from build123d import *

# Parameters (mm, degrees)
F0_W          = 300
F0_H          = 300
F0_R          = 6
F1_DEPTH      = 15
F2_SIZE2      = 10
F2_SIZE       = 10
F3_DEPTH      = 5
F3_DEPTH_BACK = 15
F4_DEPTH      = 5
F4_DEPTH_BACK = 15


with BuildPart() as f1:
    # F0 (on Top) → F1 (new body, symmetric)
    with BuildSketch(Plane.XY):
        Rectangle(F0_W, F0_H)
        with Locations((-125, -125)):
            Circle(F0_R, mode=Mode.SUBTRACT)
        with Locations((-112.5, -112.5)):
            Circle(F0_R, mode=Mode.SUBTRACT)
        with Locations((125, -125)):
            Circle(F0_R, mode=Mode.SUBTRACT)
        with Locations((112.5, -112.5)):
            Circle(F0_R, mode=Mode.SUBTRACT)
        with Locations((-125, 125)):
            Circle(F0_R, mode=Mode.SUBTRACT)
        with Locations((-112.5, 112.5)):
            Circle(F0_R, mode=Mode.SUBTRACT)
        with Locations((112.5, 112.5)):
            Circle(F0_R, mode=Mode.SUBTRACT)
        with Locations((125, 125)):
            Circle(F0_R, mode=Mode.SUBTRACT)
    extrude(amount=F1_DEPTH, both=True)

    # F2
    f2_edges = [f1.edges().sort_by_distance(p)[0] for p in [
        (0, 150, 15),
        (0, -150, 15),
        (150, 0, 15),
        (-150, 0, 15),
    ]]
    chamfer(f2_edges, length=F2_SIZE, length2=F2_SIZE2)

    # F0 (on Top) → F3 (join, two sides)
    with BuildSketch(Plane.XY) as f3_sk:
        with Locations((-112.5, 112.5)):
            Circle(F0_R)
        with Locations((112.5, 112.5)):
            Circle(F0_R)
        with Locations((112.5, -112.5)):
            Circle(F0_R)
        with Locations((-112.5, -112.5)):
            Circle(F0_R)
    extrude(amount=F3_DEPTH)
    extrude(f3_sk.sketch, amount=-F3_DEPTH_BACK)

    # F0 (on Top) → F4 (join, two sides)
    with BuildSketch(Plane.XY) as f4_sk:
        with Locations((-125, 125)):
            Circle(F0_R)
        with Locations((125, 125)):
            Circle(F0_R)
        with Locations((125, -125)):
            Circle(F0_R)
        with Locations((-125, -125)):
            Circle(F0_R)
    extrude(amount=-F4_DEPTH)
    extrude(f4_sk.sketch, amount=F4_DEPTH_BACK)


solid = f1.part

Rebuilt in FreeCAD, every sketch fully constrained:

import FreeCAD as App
import Part
import Sketcher

V = App.Vector
Q = App.Units.Quantity


def edges_at(feature, points):
    """Names of the edges that pass closest to the given points."""
    edges = feature.Shape.Edges
    near = lambda p: min(range(len(edges)), key=lambda i: edges[i].distToShape(Part.Vertex(*p))[0])
    return sorted({f"Edge{near(p) + 1}" for p in points})


def add_polygon(sketch, points):
    """Adds a closed chain of lines whose ends are joined by coincident constraints."""
    first, n = sketch.GeometryCount, len(points)
    for a, b in zip(points, points[1:] + points[:1]):
        sketch.addGeometry(Part.LineSegment(App.Vector(*a, 0), App.Vector(*b, 0)), False)
    for i in range(n):
        sketch.addConstraint(Sketcher.Constraint("Coincident", first + i, 2, first + (i + 1) % n, 1))

doc = App.newDocument("Part")
body = doc.addObject("PartDesign::Body", "Body")

# Sketch on XY plane
sketch1 = body.newObject("Sketcher::SketchObject", "Sketch")
sketch1.AttachmentSupport = (doc.getObject("XY_Plane"), [""])
sketch1.MapMode = "FlatFace"
add_polygon(sketch1, [(-150, 150), (-150, -150), (150, -150), (150, 150)])  # lines 0-3
sketch1.addGeometry(Part.Circle(V(-125, -125, 0), V(0, 0, 1), 6), False)  # 4
sketch1.addGeometry(Part.Circle(V(-112.5, -112.5, 0), V(0, 0, 1), 6), False)  # 5
sketch1.addGeometry(Part.Circle(V(125, -125, 0), V(0, 0, 1), 6), False)  # 6
sketch1.addGeometry(Part.Circle(V(112.5, -112.5, 0), V(0, 0, 1), 6), False)  # 7
sketch1.addGeometry(Part.Circle(V(-112.5, 112.5, 0), V(0, 0, 1), 6), False)  # 8
sketch1.addGeometry(Part.Circle(V(-125, 125, 0), V(0, 0, 1), 6), False)  # 9
sketch1.addGeometry(Part.Circle(V(112.5, 112.5, 0), V(0, 0, 1), 6), False)  # 10
sketch1.addGeometry(Part.Circle(V(125, 125, 0), V(0, 0, 1), 6), False)  # 11
sketch1.addConstraint([
    Sketcher.Constraint("Vertical", 0),
    Sketcher.Constraint("Horizontal", 1),
    Sketcher.Constraint("Vertical", 2),
    Sketcher.Constraint("Horizontal", 3),
    Sketcher.Constraint("Equal", 4, 5),
    Sketcher.Constraint("Equal", 5, 6),
    Sketcher.Constraint("Equal", 6, 7),
    Sketcher.Constraint("Equal", 7, 8),
    Sketcher.Constraint("Equal", 8, 9),
    Sketcher.Constraint("Equal", 9, 10),
    Sketcher.Constraint("Equal", 10, 11),
    Sketcher.Constraint("Symmetric", 7, 3, 8, 3, -1, 1),
    Sketcher.Constraint("Symmetric", 6, 3, 9, 3, -1, 1),
    Sketcher.Constraint("Symmetric", 5, 3, 10, 3, -1, 1),
    Sketcher.Constraint("Symmetric", 4, 3, 11, 3, -1, 1),
    Sketcher.Constraint("Symmetric", 0, 2, 2, 2, -1, 1),
    Sketcher.Constraint("Symmetric", 4, 3, 6, 3, -2),
    Sketcher.Constraint("Symmetric", 5, 3, 7, 3, -2),
    Sketcher.Constraint("Equal", 3, 0),
    Sketcher.Constraint("Diameter", 4, Q("12 mm")),
    Sketcher.Constraint("DistanceX", 1, 1, 1, 2, Q("300 mm")),
    Sketcher.Constraint("DistanceX", 4, 3, -1, 1, Q("125 mm")),
    Sketcher.Constraint("DistanceY", 4, 3, -1, 1, Q("125 mm")),
    Sketcher.Constraint("DistanceX", 5, 3, 7, 3, Q("225 mm")),
    Sketcher.Constraint("DistanceY", 5, 3, 8, 3, Q("225 mm")),
])
pad1 = body.newObject("PartDesign::Pad", "Pad")
pad1.Profile = sketch1
pad1.Length = 30
pad1.Midplane = True
doc.recompute()

chamfer = body.newObject("PartDesign::Chamfer", "Chamfer")
chamfer.Base = (pad1, edges_at(pad1, [
    (0, 150, 15),
    (0, -150, 15),
    (150, 0, 15),
    (-150, 0, 15),
]))
chamfer.ChamferType = "Two distances"
chamfer.Size = 10
chamfer.Size2 = 10

# Sketch on XY plane
sketch2 = body.newObject("Sketcher::SketchObject", "Sketch001")
sketch2.AttachmentSupport = (doc.getObject("XY_Plane"), [""])
sketch2.MapMode = "FlatFace"
sketch2.addGeometry([
    Part.Circle(V(-112.5, 112.5, 0), V(0, 0, 1), 6),
    Part.Circle(V(112.5, 112.5, 0), V(0, 0, 1), 6),
    Part.Circle(V(112.5, -112.5, 0), V(0, 0, 1), 6),
    Part.Circle(V(-112.5, -112.5, 0), V(0, 0, 1), 6),
], False)
sketch2.addConstraint([
    Sketcher.Constraint("Equal", 0, 1),
    Sketcher.Constraint("Equal", 1, 2),
    Sketcher.Constraint("Equal", 2, 3),
    Sketcher.Constraint("Symmetric", 0, 3, 2, 3, -1, 1),
    Sketcher.Constraint("Symmetric", 1, 3, 3, 3, -1, 1),
    Sketcher.Constraint("Symmetric", 0, 3, 1, 3, -2),
    Sketcher.Constraint("Diameter", 0, Q("12 mm")),
    Sketcher.Constraint("DistanceX", 0, 3, 1, 3, Q("225 mm")),
    Sketcher.Constraint("DistanceY", 2, 3, 1, 3, Q("225 mm")),
])
pad2 = body.newObject("PartDesign::Pad", "Pad001")
pad2.Profile = sketch2
pad2.Type = "TwoLengths"
pad2.Length = 5
pad2.Length2 = 15

# Sketch on XY plane
sketch3 = body.newObject("Sketcher::SketchObject", "Sketch002")
sketch3.AttachmentSupport = (doc.getObject("XY_Plane"), [""])
sketch3.MapMode = "FlatFace"
sketch3.addGeometry([
    Part.Circle(V(-125, 125, 0), V(0, 0, 1), 6),
    Part.Circle(V(125, 125, 0), V(0, 0, 1), 6),
    Part.Circle(V(125, -125, 0), V(0, 0, 1), 6),
    Part.Circle(V(-125, -125, 0), V(0, 0, 1), 6),
], False)
sketch3.addConstraint([
    Sketcher.Constraint("Equal", 0, 1),
    Sketcher.Constraint("Equal", 1, 2),
    Sketcher.Constraint("Equal", 2, 3),
    Sketcher.Constraint("Symmetric", 0, 3, 2, 3, -1, 1),
    Sketcher.Constraint("Symmetric", 1, 3, 3, 3, -1, 1),
    Sketcher.Constraint("Symmetric", 0, 3, 1, 3, -2),
    Sketcher.Constraint("Diameter", 0, Q("12 mm")),
    Sketcher.Constraint("DistanceX", 0, 3, -1, 1, Q("125 mm")),
    Sketcher.Constraint("DistanceY", -1, 1, 0, 3, Q("125 mm")),
])
pad3 = body.newObject("PartDesign::Pad", "Pad002")
pad3.Profile = sketch3
pad3.Type = "TwoLengths"
pad3.Length = 5
pad3.Length2 = 15
pad3.Reversed = True

doc.recompute()
